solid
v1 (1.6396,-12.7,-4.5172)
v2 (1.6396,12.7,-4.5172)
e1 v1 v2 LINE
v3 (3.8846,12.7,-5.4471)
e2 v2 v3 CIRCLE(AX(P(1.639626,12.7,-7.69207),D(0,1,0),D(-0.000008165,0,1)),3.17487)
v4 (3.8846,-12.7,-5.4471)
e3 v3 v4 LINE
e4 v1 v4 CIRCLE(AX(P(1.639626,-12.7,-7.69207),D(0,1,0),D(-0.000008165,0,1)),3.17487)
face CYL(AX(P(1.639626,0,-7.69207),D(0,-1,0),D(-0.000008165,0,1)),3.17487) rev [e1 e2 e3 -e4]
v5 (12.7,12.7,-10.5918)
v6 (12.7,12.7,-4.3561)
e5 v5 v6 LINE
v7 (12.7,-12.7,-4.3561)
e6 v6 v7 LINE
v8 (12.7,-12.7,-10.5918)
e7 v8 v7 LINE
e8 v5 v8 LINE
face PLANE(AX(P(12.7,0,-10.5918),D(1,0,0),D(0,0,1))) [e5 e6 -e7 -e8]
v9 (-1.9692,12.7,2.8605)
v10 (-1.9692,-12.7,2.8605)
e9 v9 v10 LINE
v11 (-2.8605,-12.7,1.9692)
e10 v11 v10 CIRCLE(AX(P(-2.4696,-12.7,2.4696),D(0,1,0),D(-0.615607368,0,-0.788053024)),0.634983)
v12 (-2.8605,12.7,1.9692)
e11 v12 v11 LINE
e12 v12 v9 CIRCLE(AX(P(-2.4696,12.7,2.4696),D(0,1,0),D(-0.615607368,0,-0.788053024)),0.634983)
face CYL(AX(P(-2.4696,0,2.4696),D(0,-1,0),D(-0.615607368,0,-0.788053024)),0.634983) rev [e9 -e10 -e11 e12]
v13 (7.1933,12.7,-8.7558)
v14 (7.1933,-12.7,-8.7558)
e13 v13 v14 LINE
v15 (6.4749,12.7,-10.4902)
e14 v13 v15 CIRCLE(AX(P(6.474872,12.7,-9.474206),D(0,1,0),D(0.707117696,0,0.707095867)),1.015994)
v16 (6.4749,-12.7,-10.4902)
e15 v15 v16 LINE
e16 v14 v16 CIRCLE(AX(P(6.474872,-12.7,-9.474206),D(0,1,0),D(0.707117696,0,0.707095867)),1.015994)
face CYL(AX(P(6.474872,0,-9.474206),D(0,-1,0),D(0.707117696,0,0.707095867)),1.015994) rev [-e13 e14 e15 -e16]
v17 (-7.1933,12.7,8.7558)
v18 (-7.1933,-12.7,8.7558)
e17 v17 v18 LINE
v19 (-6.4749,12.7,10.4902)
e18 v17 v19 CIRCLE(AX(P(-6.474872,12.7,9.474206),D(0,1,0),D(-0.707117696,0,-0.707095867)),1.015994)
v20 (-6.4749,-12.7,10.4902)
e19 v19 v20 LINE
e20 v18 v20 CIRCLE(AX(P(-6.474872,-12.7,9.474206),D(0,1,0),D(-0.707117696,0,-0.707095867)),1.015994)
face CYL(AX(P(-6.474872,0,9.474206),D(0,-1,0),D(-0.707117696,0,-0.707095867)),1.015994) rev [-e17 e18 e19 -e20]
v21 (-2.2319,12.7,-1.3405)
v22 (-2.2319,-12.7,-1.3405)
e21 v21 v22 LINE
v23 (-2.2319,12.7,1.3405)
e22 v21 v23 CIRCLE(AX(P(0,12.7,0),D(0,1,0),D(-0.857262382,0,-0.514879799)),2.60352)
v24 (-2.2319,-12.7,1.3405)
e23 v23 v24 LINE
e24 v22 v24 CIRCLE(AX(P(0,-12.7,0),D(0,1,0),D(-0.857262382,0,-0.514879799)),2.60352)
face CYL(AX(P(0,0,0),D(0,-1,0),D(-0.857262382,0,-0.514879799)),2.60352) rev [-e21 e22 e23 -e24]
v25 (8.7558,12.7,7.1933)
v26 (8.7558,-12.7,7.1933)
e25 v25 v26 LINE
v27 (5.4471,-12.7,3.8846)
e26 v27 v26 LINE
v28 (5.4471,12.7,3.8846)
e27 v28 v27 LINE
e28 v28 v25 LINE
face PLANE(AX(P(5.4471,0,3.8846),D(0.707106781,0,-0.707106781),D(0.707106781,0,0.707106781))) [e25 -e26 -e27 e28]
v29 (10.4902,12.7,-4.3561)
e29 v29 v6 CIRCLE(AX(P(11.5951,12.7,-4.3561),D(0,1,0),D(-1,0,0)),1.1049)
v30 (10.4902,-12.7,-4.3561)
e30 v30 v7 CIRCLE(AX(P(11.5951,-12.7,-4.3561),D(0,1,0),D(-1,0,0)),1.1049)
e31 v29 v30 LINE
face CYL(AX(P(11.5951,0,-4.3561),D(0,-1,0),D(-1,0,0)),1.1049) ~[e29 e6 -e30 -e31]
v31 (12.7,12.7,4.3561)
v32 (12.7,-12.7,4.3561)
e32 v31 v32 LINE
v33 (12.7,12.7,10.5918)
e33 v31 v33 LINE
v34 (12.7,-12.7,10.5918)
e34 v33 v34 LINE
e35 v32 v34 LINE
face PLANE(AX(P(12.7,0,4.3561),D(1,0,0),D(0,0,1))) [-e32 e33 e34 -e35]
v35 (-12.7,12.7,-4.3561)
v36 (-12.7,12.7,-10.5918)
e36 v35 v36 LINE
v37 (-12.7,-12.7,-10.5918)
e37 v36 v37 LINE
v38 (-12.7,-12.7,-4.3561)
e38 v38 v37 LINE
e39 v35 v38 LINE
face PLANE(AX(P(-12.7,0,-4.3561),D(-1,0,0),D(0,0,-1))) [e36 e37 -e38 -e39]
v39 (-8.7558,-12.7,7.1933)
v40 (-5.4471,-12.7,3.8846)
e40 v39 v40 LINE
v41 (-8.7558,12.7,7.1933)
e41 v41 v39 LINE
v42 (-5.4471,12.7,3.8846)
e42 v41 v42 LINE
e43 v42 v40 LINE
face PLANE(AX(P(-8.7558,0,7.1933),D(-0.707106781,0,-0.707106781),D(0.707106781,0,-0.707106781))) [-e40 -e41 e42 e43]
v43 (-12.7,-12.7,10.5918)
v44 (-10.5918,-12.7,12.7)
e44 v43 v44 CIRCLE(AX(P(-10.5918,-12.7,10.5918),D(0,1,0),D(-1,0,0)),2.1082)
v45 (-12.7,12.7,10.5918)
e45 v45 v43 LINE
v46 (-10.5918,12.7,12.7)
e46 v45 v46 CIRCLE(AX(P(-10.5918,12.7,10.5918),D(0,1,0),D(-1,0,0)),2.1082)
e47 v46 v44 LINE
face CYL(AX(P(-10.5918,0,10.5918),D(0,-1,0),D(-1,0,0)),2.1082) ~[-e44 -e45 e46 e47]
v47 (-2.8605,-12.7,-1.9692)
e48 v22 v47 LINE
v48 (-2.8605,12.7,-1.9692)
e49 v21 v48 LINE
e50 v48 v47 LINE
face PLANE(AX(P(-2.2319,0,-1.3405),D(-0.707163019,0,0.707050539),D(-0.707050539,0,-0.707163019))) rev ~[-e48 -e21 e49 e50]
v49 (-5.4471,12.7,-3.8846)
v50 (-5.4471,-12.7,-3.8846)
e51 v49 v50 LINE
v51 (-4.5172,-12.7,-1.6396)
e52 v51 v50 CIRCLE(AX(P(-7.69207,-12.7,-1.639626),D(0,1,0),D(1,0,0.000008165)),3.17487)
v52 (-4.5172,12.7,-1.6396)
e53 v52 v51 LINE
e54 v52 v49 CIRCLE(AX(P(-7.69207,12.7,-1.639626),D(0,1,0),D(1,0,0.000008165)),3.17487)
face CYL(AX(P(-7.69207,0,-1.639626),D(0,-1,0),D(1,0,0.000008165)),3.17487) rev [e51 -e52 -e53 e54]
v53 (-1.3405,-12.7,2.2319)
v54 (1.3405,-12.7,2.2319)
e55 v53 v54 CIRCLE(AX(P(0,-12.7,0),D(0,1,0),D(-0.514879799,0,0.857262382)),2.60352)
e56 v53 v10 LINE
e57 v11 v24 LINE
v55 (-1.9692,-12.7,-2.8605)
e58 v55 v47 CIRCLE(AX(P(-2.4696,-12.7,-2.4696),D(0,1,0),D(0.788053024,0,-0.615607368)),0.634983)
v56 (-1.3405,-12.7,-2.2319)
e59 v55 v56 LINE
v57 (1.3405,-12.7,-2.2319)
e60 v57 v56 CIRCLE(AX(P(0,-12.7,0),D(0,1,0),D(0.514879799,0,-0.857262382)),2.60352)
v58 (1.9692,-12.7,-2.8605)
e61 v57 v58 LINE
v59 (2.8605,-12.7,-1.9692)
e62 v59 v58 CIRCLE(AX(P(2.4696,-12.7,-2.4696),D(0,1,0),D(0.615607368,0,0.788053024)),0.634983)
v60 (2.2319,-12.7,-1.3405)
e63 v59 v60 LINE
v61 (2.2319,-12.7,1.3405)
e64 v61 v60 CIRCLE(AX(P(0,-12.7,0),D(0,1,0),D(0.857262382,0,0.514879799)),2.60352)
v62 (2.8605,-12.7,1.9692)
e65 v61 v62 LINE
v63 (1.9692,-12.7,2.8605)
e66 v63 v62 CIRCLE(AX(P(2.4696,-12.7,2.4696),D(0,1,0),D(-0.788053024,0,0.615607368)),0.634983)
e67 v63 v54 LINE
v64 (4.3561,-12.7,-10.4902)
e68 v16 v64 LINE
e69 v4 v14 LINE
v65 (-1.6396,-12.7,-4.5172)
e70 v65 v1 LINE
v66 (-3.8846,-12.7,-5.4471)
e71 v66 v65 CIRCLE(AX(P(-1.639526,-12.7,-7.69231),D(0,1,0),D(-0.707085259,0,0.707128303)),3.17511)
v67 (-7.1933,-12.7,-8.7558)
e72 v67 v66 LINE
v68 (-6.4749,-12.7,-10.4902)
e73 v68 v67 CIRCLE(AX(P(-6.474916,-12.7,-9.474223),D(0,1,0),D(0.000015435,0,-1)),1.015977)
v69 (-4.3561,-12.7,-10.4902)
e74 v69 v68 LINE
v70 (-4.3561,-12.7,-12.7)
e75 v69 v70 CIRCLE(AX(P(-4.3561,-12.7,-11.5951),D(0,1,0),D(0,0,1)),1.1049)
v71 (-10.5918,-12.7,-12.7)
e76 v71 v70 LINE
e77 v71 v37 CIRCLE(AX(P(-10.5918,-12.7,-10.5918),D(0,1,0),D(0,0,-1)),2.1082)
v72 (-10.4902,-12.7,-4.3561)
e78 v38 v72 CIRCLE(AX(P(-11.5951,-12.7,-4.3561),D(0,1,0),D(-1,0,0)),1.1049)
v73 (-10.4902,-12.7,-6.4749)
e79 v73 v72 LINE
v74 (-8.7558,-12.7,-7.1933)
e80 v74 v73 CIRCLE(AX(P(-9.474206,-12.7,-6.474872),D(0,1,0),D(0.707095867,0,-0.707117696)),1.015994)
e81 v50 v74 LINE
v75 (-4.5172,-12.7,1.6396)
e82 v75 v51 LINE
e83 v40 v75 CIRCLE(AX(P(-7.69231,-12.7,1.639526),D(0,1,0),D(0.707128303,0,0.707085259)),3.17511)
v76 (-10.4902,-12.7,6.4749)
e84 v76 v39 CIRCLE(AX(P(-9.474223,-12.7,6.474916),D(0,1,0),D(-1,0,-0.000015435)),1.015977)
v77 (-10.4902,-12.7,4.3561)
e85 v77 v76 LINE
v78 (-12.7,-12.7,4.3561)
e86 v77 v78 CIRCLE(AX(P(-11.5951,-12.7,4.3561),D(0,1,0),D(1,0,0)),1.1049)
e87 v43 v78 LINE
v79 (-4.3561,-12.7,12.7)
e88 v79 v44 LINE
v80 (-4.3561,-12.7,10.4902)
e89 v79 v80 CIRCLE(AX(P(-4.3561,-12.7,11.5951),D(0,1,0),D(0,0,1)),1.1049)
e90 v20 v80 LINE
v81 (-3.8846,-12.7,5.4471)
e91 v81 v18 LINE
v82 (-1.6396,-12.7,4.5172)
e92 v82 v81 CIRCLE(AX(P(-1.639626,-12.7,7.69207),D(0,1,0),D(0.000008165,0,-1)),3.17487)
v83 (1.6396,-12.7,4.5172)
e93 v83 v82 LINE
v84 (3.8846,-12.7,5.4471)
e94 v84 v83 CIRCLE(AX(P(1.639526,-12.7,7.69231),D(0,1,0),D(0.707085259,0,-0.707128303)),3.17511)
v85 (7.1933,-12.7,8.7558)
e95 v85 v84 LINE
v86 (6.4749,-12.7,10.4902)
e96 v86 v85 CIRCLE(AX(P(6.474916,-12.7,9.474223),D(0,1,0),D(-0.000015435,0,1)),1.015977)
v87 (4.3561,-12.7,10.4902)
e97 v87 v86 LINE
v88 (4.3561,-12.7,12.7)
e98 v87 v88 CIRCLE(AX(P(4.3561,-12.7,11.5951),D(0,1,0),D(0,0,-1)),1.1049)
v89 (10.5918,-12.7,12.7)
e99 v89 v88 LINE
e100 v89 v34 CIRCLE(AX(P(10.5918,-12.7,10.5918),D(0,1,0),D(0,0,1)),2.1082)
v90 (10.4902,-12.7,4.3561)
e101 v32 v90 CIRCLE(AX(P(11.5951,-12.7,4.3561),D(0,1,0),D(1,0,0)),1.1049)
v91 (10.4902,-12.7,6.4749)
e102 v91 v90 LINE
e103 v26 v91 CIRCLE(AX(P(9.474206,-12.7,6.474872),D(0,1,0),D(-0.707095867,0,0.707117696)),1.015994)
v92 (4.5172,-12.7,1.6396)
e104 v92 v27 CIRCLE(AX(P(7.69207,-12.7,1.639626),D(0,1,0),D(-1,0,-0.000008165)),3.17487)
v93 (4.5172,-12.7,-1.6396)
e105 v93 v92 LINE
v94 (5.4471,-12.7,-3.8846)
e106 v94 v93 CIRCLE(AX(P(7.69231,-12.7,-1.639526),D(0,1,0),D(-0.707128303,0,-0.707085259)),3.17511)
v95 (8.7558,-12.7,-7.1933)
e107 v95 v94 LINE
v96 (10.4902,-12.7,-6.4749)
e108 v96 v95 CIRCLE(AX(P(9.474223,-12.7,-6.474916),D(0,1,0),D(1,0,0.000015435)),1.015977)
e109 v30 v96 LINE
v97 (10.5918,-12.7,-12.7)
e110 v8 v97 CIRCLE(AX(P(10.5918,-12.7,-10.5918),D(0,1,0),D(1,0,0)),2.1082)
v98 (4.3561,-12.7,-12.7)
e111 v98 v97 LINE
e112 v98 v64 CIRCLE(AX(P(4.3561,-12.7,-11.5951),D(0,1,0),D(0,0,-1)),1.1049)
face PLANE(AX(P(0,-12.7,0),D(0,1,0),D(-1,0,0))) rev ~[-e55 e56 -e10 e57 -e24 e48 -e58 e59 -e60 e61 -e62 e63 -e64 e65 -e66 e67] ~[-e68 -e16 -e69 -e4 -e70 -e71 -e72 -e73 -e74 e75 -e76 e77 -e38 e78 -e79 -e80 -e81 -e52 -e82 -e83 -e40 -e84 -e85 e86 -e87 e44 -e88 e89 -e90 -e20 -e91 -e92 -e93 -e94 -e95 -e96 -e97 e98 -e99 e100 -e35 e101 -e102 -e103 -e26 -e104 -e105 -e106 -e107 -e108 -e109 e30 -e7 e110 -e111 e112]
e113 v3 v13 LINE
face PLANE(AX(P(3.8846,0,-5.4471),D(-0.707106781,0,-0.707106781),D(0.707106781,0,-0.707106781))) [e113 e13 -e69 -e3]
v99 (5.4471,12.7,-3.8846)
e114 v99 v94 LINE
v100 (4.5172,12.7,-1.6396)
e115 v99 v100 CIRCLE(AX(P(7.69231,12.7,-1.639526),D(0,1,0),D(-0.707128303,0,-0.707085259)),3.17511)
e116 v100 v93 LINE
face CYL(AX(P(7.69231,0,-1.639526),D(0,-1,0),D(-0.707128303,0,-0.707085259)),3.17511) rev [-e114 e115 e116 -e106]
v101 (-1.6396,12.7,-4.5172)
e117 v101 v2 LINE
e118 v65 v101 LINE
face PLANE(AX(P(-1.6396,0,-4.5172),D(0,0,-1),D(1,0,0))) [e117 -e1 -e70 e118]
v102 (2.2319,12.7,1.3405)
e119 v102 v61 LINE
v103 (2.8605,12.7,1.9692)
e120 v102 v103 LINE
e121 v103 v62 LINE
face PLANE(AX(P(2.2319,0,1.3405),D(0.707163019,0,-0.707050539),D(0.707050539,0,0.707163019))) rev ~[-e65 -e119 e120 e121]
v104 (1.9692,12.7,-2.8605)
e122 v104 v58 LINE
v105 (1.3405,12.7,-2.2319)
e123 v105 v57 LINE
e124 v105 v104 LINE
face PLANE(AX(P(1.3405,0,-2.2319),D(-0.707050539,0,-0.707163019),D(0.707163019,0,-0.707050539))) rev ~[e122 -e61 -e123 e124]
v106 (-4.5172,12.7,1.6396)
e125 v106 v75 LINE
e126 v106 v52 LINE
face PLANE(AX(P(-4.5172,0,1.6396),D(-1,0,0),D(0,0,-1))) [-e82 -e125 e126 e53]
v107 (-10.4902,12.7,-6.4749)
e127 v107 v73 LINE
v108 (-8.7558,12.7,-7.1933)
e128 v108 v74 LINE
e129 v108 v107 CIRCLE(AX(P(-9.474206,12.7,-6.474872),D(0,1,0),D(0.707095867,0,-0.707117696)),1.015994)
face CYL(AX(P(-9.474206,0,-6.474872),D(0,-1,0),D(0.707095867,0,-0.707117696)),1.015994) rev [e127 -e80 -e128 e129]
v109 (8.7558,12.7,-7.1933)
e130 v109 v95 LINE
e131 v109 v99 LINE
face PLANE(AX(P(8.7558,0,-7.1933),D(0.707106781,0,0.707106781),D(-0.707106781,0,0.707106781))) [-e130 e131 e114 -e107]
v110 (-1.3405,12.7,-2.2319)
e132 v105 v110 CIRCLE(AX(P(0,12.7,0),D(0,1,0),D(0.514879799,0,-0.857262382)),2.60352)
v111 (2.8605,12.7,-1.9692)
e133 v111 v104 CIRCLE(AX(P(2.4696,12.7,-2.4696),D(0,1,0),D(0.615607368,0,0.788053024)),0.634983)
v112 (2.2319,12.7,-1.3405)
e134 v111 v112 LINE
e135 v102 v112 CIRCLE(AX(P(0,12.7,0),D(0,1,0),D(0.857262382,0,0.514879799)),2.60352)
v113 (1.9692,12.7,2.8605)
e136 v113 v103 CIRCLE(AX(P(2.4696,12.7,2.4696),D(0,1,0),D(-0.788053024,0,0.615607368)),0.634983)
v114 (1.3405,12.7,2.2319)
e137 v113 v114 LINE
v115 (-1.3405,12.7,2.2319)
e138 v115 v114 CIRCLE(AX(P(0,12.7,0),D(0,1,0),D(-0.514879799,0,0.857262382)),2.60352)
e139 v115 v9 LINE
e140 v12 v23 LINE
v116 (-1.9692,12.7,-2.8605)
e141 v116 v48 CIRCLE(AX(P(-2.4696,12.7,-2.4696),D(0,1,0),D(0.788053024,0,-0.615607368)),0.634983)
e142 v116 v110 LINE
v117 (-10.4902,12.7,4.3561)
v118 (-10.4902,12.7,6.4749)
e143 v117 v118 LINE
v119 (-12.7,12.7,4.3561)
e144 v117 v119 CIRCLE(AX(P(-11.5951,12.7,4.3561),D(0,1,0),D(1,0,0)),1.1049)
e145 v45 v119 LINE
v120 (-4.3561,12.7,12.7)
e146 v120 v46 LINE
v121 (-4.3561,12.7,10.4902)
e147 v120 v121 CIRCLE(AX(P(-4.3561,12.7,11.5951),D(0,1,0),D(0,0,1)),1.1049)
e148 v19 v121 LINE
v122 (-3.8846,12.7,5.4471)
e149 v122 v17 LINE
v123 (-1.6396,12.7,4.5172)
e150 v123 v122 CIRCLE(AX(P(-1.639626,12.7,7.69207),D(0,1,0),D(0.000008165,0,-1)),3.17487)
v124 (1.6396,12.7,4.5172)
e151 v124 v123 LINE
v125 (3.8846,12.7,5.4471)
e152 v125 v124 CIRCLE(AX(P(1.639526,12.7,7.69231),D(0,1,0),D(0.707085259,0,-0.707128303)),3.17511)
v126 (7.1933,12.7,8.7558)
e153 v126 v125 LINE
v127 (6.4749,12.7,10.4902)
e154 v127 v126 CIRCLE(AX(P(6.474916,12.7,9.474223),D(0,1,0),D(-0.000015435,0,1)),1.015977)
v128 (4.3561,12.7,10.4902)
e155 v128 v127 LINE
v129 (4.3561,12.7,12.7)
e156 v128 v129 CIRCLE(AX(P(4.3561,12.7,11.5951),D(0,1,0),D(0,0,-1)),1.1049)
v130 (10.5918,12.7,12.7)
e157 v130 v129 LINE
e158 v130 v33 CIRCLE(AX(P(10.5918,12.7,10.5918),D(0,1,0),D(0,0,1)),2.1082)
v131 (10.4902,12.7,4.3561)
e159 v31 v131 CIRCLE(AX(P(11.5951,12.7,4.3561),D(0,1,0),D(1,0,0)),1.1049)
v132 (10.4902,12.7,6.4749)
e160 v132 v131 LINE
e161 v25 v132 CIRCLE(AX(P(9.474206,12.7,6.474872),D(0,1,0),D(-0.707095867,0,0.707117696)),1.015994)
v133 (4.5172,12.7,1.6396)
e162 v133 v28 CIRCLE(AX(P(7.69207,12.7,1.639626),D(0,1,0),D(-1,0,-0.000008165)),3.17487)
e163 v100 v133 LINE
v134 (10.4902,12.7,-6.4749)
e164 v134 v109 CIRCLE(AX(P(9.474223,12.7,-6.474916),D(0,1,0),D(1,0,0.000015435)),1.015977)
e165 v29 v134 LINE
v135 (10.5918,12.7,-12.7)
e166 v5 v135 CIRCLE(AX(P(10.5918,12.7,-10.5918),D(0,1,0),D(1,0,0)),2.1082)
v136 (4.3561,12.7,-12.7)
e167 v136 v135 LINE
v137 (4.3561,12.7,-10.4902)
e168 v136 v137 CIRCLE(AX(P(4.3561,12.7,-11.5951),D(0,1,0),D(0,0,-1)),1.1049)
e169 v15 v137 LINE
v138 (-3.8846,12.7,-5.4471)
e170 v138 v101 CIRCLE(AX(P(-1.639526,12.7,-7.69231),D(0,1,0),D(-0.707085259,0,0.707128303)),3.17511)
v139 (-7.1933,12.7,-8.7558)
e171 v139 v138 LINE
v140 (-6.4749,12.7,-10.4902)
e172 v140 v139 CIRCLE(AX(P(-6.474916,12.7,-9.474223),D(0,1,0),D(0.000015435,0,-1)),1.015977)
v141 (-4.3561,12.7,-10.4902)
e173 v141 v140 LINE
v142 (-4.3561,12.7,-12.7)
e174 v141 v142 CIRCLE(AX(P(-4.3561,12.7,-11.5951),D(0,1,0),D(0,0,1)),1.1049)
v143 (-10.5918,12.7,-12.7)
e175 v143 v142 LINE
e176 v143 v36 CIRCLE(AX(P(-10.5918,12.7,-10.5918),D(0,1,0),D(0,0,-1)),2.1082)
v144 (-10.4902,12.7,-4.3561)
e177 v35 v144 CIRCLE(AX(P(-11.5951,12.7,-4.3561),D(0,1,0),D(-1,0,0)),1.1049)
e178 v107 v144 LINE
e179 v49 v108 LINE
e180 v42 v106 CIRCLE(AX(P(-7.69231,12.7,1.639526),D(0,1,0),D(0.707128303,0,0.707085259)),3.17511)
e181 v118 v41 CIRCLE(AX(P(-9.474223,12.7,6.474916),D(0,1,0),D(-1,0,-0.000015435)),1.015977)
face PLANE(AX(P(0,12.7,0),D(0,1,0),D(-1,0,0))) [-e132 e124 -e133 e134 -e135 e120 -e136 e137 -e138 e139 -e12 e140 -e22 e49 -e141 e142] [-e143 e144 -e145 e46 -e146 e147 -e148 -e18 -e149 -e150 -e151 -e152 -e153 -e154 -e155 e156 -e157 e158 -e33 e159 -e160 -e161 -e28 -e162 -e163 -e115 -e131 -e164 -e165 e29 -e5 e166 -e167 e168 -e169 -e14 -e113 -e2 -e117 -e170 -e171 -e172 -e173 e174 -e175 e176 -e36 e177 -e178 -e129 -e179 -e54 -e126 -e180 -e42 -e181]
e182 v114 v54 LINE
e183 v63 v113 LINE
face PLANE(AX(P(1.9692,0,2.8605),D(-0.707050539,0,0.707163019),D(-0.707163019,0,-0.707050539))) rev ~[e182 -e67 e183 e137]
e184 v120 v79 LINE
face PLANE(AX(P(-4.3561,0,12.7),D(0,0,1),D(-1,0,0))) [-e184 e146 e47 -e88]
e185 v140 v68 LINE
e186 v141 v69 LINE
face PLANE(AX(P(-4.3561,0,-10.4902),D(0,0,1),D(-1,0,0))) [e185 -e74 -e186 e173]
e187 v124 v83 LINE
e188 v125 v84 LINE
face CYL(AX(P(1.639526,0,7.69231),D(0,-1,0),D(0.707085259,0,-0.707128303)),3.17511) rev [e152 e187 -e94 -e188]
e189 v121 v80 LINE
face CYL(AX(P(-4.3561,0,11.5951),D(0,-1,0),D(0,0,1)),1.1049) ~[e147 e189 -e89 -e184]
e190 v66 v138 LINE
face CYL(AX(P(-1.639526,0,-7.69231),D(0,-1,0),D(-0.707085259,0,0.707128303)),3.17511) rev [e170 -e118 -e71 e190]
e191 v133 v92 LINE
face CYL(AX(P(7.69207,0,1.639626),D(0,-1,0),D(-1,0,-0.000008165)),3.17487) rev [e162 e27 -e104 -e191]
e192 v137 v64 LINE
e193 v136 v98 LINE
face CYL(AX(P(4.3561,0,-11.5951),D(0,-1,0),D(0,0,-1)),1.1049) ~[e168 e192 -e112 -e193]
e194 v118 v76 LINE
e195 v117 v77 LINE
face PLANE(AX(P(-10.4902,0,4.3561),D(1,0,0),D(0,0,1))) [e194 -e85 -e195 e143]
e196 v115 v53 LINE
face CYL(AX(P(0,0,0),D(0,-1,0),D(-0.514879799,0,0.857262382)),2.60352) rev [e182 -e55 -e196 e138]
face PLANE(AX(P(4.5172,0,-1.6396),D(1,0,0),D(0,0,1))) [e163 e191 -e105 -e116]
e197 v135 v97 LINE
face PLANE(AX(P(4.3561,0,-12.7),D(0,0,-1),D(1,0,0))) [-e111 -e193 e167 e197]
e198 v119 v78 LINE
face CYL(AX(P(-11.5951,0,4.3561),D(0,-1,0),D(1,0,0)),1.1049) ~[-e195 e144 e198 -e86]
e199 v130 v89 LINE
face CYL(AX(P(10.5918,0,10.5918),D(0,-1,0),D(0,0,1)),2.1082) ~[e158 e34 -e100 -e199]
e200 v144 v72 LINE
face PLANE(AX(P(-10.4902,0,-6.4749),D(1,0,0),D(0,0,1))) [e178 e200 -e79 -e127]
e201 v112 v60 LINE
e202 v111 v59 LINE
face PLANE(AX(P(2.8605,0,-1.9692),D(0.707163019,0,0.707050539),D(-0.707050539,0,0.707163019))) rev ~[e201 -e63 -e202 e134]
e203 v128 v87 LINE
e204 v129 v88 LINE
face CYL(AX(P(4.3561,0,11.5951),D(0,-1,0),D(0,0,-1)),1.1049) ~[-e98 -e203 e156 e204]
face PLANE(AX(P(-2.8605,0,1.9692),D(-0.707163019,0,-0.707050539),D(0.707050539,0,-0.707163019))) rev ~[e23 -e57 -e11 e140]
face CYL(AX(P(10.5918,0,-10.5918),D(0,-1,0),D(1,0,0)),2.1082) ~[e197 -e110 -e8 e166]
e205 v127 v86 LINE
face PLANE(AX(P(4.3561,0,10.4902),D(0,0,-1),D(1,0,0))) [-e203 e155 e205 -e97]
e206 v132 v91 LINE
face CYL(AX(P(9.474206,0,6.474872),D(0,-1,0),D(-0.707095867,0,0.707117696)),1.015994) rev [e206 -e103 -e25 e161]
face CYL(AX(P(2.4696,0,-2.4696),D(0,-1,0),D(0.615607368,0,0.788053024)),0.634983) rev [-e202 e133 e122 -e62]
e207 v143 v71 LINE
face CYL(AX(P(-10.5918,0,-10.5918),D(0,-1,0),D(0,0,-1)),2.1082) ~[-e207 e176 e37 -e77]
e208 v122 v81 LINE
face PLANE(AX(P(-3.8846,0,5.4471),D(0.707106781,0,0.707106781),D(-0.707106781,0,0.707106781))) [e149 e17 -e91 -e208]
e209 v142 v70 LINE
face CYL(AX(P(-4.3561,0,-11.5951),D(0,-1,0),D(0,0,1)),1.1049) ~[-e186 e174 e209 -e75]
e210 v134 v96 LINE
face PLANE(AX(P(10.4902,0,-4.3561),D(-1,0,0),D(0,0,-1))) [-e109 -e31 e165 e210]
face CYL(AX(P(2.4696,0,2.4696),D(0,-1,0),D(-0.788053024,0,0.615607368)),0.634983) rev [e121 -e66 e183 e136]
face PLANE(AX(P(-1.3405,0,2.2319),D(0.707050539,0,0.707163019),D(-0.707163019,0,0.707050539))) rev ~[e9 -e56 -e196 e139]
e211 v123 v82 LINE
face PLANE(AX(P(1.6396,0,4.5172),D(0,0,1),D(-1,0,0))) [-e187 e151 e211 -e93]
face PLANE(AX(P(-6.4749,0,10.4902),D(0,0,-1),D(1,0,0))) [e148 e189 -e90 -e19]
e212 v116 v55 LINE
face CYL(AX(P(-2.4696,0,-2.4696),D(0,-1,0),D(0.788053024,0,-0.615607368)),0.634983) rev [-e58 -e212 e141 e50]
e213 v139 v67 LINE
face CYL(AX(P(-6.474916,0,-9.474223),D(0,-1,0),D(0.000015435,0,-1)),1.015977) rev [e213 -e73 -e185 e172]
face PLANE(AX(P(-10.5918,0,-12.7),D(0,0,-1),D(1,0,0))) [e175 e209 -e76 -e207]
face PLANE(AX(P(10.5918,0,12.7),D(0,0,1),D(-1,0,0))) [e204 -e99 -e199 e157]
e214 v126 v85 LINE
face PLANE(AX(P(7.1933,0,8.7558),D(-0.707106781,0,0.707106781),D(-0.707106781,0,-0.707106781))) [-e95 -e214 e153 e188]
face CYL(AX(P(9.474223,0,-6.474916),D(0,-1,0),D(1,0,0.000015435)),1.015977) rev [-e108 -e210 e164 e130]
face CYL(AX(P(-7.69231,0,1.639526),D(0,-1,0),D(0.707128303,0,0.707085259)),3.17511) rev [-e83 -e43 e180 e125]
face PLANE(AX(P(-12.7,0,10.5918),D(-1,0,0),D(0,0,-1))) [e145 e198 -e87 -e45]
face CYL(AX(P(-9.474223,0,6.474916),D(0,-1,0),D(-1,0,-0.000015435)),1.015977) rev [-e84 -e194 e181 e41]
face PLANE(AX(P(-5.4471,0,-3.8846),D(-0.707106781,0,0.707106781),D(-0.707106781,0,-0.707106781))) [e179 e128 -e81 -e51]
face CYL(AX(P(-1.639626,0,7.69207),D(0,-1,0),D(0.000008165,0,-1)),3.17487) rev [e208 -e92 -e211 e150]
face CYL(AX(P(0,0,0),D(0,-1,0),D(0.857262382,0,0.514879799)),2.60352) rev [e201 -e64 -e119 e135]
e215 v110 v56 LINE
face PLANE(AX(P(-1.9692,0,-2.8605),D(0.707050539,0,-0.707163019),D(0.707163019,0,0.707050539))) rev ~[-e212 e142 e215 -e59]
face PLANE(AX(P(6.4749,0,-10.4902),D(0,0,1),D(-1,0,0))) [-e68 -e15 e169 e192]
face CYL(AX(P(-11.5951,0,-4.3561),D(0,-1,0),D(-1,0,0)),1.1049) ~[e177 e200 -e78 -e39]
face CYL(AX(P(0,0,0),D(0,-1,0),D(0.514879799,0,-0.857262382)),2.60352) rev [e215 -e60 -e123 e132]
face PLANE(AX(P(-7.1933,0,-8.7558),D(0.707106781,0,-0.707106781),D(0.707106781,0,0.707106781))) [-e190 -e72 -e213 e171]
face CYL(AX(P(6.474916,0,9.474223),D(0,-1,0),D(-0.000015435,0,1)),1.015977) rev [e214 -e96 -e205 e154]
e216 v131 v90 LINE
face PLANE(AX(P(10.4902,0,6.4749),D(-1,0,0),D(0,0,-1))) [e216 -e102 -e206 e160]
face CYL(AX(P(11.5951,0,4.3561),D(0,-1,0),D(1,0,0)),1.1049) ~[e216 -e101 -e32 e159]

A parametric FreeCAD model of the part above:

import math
import FreeCAD as App
import Part
import Sketcher
Q = App.Units.Quantity

doc = App.newDocument("Part")
body = doc.addObject("PartDesign::Body", "Body")

# Sketch on XZ plane
sketch1 = body.newObject("Sketcher::SketchObject", "Sketch")
sketch1.AttachmentSupport = (doc.getObject("XZ_Plane"), [""])
sketch1.MapMode = "FlatFace"
sketch1.addGeometry(Part.ArcOfCircle(Part.Circle(App.Vector(1.6396, -7.6922, 0), App.Vector(0, 0, 1), 3.175), math.radians(45.001276), math.radians(90)), False)
sketch1.addGeometry(Part.LineSegment(App.Vector(1.6396, -4.5172, 0), App.Vector(-1.6396, -4.5172, 0)), False)
sketch1.addGeometry(Part.ArcOfCircle(Part.Circle(App.Vector(-1.6396, -7.6922, 0), App.Vector(0, 0, 1), 3.17498), math.radians(90), math.radians(134.998724)), False)
sketch1.addGeometry(Part.LineSegment(App.Vector(-3.8846, -5.4471, 0), App.Vector(-7.1933, -8.7558, 0)), False)
sketch1.addGeometry(Part.ArcOfCircle(Part.Circle(App.Vector(-6.4749, -9.4742, 0), App.Vector(0, 0, 1), 1.016), math.radians(135), math.radians(270)), False)
sketch1.addGeometry(Part.LineSegment(App.Vector(-6.4749, -10.4902, 0), App.Vector(-4.3561, -10.4902, 0)), False)
sketch1.addGeometry(Part.ArcOfCircle(Part.Circle(App.Vector(-4.3561, -11.5951, 0), App.Vector(0, 0, 1), 1.1049), math.radians(-90), math.radians(90)), False)
sketch1.addGeometry(Part.LineSegment(App.Vector(-4.3561, -12.7, 0), App.Vector(-10.5918, -12.7, 0)), False)
sketch1.addGeometry(Part.ArcOfCircle(Part.Circle(App.Vector(-10.5918, -10.5918, 0), App.Vector(0, 0, 1), 2.1082), math.radians(180), math.radians(270)), False)
sketch1.addGeometry(Part.LineSegment(App.Vector(-12.7, -10.5918, 0), App.Vector(-12.7, -4.3561, 0)), False)
sketch1.addGeometry(Part.ArcOfCircle(Part.Circle(App.Vector(-11.5951, -4.3561, 0), App.Vector(0, 0, 1), 1.1049), math.radians(0), math.radians(180)), False)
sketch1.addGeometry(Part.LineSegment(App.Vector(-10.4902, -4.3561, 0), App.Vector(-10.4902, -6.4749, 0)), False)
sketch1.addGeometry(Part.ArcOfCircle(Part.Circle(App.Vector(-9.4742, -6.4749, 0), App.Vector(0, 0, 1), 1.015971), math.radians(180), math.radians(315)), False)
sketch1.addGeometry(Part.LineSegment(App.Vector(-8.7558, -7.1933, 0), App.Vector(-5.4471, -3.8846, 0)), False)
sketch1.addGeometry(Part.ArcOfCircle(Part.Circle(App.Vector(-7.6922, -1.6396, 0), App.Vector(0, 0, 1), 3.175), math.radians(-44.998724), math.radians(0)), False)
sketch1.addGeometry(Part.LineSegment(App.Vector(-4.5172, -1.6396, 0), App.Vector(-4.5172, 1.6396, 0)), False)
sketch1.addGeometry(Part.ArcOfCircle(Part.Circle(App.Vector(-7.6922, 1.6396, 0), App.Vector(0, 0, 1), 3.17498), math.radians(0), math.radians(44.998724)), False)
sketch1.addGeometry(Part.LineSegment(App.Vector(-5.4471, 3.8846, 0), App.Vector(-8.7558, 7.1933, 0)), False)
sketch1.addGeometry(Part.ArcOfCircle(Part.Circle(App.Vector(-9.4742, 6.4749, 0), App.Vector(0, 0, 1), 1.016), math.radians(45), math.radians(180)), False)
sketch1.addGeometry(Part.LineSegment(App.Vector(-10.4902, 6.4749, 0), App.Vector(-10.4902, 4.3561, 0)), False)
sketch1.addGeometry(Part.ArcOfCircle(Part.Circle(App.Vector(-11.5951, 4.3561, 0), App.Vector(0, 0, 1), 1.1049), math.radians(180), math.radians(360)), False)
sketch1.addGeometry(Part.LineSegment(App.Vector(-12.7, 4.3561, 0), App.Vector(-12.7, 10.5918, 0)), False)
sketch1.addGeometry(Part.ArcOfCircle(Part.Circle(App.Vector(-10.5918, 10.5918, 0), App.Vector(0, 0, 1), 2.1082), math.radians(90), math.radians(180)), False)
sketch1.addGeometry(Part.LineSegment(App.Vector(-10.5918, 12.7, 0), App.Vector(-4.3561, 12.7, 0)), False)
sketch1.addGeometry(Part.ArcOfCircle(Part.Circle(App.Vector(-4.3561, 11.5951, 0), App.Vector(0, 0, 1), 1.1049), math.radians(-90), math.radians(90)), False)
sketch1.addGeometry(Part.LineSegment(App.Vector(-4.3561, 10.4902, 0), App.Vector(-6.4749, 10.4902, 0)), False)
sketch1.addGeometry(Part.ArcOfCircle(Part.Circle(App.Vector(-6.4749, 9.4742, 0), App.Vector(0, 0, 1), 1.015971), math.radians(90), math.radians(225)), False)
sketch1.addGeometry(Part.LineSegment(App.Vector(-7.1933, 8.7558, 0), App.Vector(-3.8846, 5.4471, 0)), False)
sketch1.addGeometry(Part.ArcOfCircle(Part.Circle(App.Vector(-1.6396, 7.6922, 0), App.Vector(0, 0, 1), 3.175), math.radians(-134.998724), math.radians(-90)), False)
sketch1.addGeometry(Part.LineSegment(App.Vector(-1.6396, 4.5172, 0), App.Vector(1.6396, 4.5172, 0)), False)
sketch1.addGeometry(Part.ArcOfCircle(Part.Circle(App.Vector(1.6396, 7.6922, 0), App.Vector(0, 0, 1), 3.17498), math.radians(-90), math.radians(-45.001276)), False)
sketch1.addGeometry(Part.LineSegment(App.Vector(3.8846, 5.4471, 0), App.Vector(7.1933, 8.7558, 0)), False)
sketch1.addGeometry(Part.ArcOfCircle(Part.Circle(App.Vector(6.4749, 9.4742, 0), App.Vector(0, 0, 1), 1.016), math.radians(-45), math.radians(90)), False)
sketch1.addGeometry(Part.LineSegment(App.Vector(6.4749, 10.4902, 0), App.Vector(4.3561, 10.4902, 0)), False)
sketch1.addGeometry(Part.ArcOfCircle(Part.Circle(App.Vector(4.3561, 11.5951, 0), App.Vector(0, 0, 1), 1.1049), math.radians(90), math.radians(270)), False)
sketch1.addGeometry(Part.LineSegment(App.Vector(4.3561, 12.7, 0), App.Vector(10.5918, 12.7, 0)), False)
sketch1.addGeometry(Part.ArcOfCircle(Part.Circle(App.Vector(10.5918, 10.5918, 0), App.Vector(0, 0, 1), 2.1082), math.radians(0), math.radians(90)), False)
sketch1.addGeometry(Part.LineSegment(App.Vector(12.7, 10.5918, 0), App.Vector(12.7, 4.3561, 0)), False)
sketch1.addGeometry(Part.ArcOfCircle(Part.Circle(App.Vector(11.5951, 4.3561, 0), App.Vector(0, 0, 1), 1.1049), math.radians(180), math.radians(360)), False)
sketch1.addGeometry(Part.LineSegment(App.Vector(10.4902, 4.3561, 0), App.Vector(10.4902, 6.4749, 0)), False)
sketch1.addGeometry(Part.ArcOfCircle(Part.Circle(App.Vector(9.4742, 6.4749, 0), App.Vector(0, 0, 1), 1.015971), math.radians(0), math.radians(135)), False)
sketch1.addGeometry(Part.LineSegment(App.Vector(8.7558, 7.1933, 0), App.Vector(5.4471, 3.8846, 0)), False)
sketch1.addGeometry(Part.ArcOfCircle(Part.Circle(App.Vector(7.6922, 1.6396, 0), App.Vector(0, 0, 1), 3.175), math.radians(135.001276), math.radians(180)), False)
sketch1.addGeometry(Part.LineSegment(App.Vector(4.5172, 1.6396, 0), App.Vector(4.5172, -1.6396, 0)), False)
sketch1.addGeometry(Part.ArcOfCircle(Part.Circle(App.Vector(7.6922, -1.6396, 0), App.Vector(0, 0, 1), 3.17498), math.radians(180), math.radians(224.998724)), False)
sketch1.addGeometry(Part.LineSegment(App.Vector(5.4471, -3.8846, 0), App.Vector(8.7558, -7.1933, 0)), False)
sketch1.addGeometry(Part.ArcOfCircle(Part.Circle(App.Vector(9.4742, -6.4749, 0), App.Vector(0, 0, 1), 1.016), math.radians(-135), math.radians(0)), False)
sketch1.addGeometry(Part.LineSegment(App.Vector(10.4902, -6.4749, 0), App.Vector(10.4902, -4.3561, 0)), False)
sketch1.addGeometry(Part.ArcOfCircle(Part.Circle(App.Vector(11.5951, -4.3561, 0), App.Vector(0, 0, 1), 1.1049), math.radians(0), math.radians(180)), False)
sketch1.addGeometry(Part.LineSegment(App.Vector(12.7, -4.3561, 0), App.Vector(12.7, -10.5918, 0)), False)
sketch1.addGeometry(Part.ArcOfCircle(Part.Circle(App.Vector(10.5918, -10.5918, 0), App.Vector(0, 0, 1), 2.1082), math.radians(-90), math.radians(0)), False)
sketch1.addGeometry(Part.LineSegment(App.Vector(10.5918, -12.7, 0), App.Vector(4.3561, -12.7, 0)), False)
sketch1.addGeometry(Part.ArcOfCircle(Part.Circle(App.Vector(4.3561, -11.5951, 0), App.Vector(0, 0, 1), 1.1049), math.radians(90), math.radians(270)), False)
sketch1.addGeometry(Part.LineSegment(App.Vector(4.3561, -10.4902, 0), App.Vector(6.4749, -10.4902, 0)), False)
sketch1.addGeometry(Part.ArcOfCircle(Part.Circle(App.Vector(6.4749, -9.4742, 0), App.Vector(0, 0, 1), 1.015971), math.radians(-90), math.radians(45)), False)
sketch1.addGeometry(Part.LineSegment(App.Vector(7.1933, -8.7558, 0), App.Vector(3.8846, -5.4471, 0)), False)
sketch1.addGeometry(Part.ArcOfCircle(Part.Circle(App.Vector(2.4696, 2.4696, 0), App.Vector(0, 0, 1), 0.634983), math.radians(-52.003934), math.radians(142.003934)), False)
sketch1.addGeometry(Part.LineSegment(App.Vector(1.9692, 2.8605, 0), App.Vector(1.3405, 2.2319, 0)), False)
sketch1.addGeometry(Part.ArcOfCircle(Part.Circle(App.Vector(0, 0, 0), App.Vector(0, 0, 1), 2.60352), math.radians(59.010579), math.radians(120.989421)), False)
sketch1.addGeometry(Part.LineSegment(App.Vector(-1.3405, 2.2319, 0), App.Vector(-1.9692, 2.8605, 0)), False)
sketch1.addGeometry(Part.ArcOfCircle(Part.Circle(App.Vector(-2.4696, 2.4696, 0), App.Vector(0, 0, 1), 0.634983), math.radians(37.996066), math.radians(232.003934)), False)
sketch1.addGeometry(Part.LineSegment(App.Vector(-2.8605, 1.9692, 0), App.Vector(-2.2319, 1.3405, 0)), False)
sketch1.addGeometry(Part.ArcOfCircle(Part.Circle(App.Vector(0, 0, 0), App.Vector(0, 0, 1), 2.60352), math.radians(149.010579), math.radians(210.989421)), False)
sketch1.addGeometry(Part.LineSegment(App.Vector(-2.2319, -1.3405, 0), App.Vector(-2.8605, -1.9692, 0)), False)
sketch1.addGeometry(Part.ArcOfCircle(Part.Circle(App.Vector(-2.4696, -2.4696, 0), App.Vector(0, 0, 1), 0.634983), math.radians(127.996066), math.radians(322.003934)), False)
sketch1.addGeometry(Part.LineSegment(App.Vector(-1.9692, -2.8605, 0), App.Vector(-1.3405, -2.2319, 0)), False)
sketch1.addGeometry(Part.ArcOfCircle(Part.Circle(App.Vector(0, 0, 0), App.Vector(0, 0, 1), 2.60352), math.radians(-120.989421), math.radians(-59.010579)), False)
sketch1.addGeometry(Part.LineSegment(App.Vector(1.3405, -2.2319, 0), App.Vector(1.9692, -2.8605, 0)), False)
sketch1.addGeometry(Part.ArcOfCircle(Part.Circle(App.Vector(2.4696, -2.4696, 0), App.Vector(0, 0, 1), 0.634983), math.radians(-142.003934), math.radians(52.003934)), False)
sketch1.addGeometry(Part.LineSegment(App.Vector(2.8605, -1.9692, 0), App.Vector(2.2319, -1.3405, 0)), False)
sketch1.addGeometry(Part.ArcOfCircle(Part.Circle(App.Vector(0, 0, 0), App.Vector(0, 0, 1), 2.60352), math.radians(-30.989421), math.radians(30.989421)), False)
sketch1.addGeometry(Part.LineSegment(App.Vector(2.2319, 1.3405, 0), App.Vector(2.8605, 1.9692, 0)), False)
sketch1.addConstraint(Sketcher.Constraint("Tangent", 0, 2, 1, 1))
sketch1.addConstraint(Sketcher.Constraint("Tangent", 1, 2, 2, 1))
sketch1.addConstraint(Sketcher.Constraint("Tangent", 2, 2, 3, 1))
sketch1.addConstraint(Sketcher.Constraint("Tangent", 3, 2, 4, 1))
sketch1.addConstraint(Sketcher.Constraint("Tangent", 4, 2, 5, 1))
sketch1.addConstraint(Sketcher.Constraint("Tangent", 5, 2, 6, 2))
sketch1.addConstraint(Sketcher.Constraint("Tangent", 6, 1, 7, 1))
sketch1.addConstraint(Sketcher.Constraint("Tangent", 7, 2, 8, 2))
sketch1.addConstraint(Sketcher.Constraint("Tangent", 8, 1, 9, 1))
sketch1.addConstraint(Sketcher.Constraint("Tangent", 9, 2, 10, 2))
sketch1.addConstraint(Sketcher.Constraint("Tangent", 10, 1, 11, 1))
sketch1.addConstraint(Sketcher.Constraint("Tangent", 11, 2, 12, 1))
sketch1.addConstraint(Sketcher.Constraint("Tangent", 12, 2, 13, 1))
sketch1.addConstraint(Sketcher.Constraint("Tangent", 13, 2, 14, 1))
sketch1.addConstraint(Sketcher.Constraint("Tangent", 14, 2, 15, 1))
sketch1.addConstraint(Sketcher.Constraint("Tangent", 15, 2, 16, 1))
sketch1.addConstraint(Sketcher.Constraint("Tangent", 16, 2, 17, 1))
sketch1.addConstraint(Sketcher.Constraint("Tangent", 17, 2, 18, 1))
sketch1.addConstraint(Sketcher.Constraint("Tangent", 18, 2, 19, 1))
sketch1.addConstraint(Sketcher.Constraint("Tangent", 19, 2, 20, 2))
sketch1.addConstraint(Sketcher.Constraint("Tangent", 20, 1, 21, 1))
sketch1.addConstraint(Sketcher.Constraint("Tangent", 21, 2, 22, 2))
sketch1.addConstraint(Sketcher.Constraint("Tangent", 22, 1, 23, 1))
sketch1.addConstraint(Sketcher.Constraint("Tangent", 23, 2, 24, 2))
sketch1.addConstraint(Sketcher.Constraint("Tangent", 24, 1, 25, 1))
sketch1.addConstraint(Sketcher.Constraint("Tangent", 25, 2, 26, 1))
sketch1.addConstraint(Sketcher.Constraint("Tangent", 26, 2, 27, 1))
sketch1.addConstraint(Sketcher.Constraint("Tangent", 27, 2, 28, 1))
sketch1.addConstraint(Sketcher.Constraint("Tangent", 28, 2, 29, 1))
sketch1.addConstraint(Sketcher.Constraint("Tangent", 29, 2, 30, 1))
sketch1.addConstraint(Sketcher.Constraint("Tangent", 30, 2, 31, 1))
sketch1.addConstraint(Sketcher.Constraint("Tangent", 31, 2, 32, 1))
sketch1.addConstraint(Sketcher.Constraint("Tangent", 32, 2, 33, 1))
sketch1.addConstraint(Sketcher.Constraint("Tangent", 33, 2, 34, 2))
sketch1.addConstraint(Sketcher.Constraint("Tangent", 34, 1, 35, 1))
sketch1.addConstraint(Sketcher.Constraint("Tangent", 35, 2, 36, 2))
sketch1.addConstraint(Sketcher.Constraint("Tangent", 36, 1, 37, 1))
sketch1.addConstraint(Sketcher.Constraint("Tangent", 37, 2, 38, 2))
sketch1.addConstraint(Sketcher.Constraint("Tangent", 38, 1, 39, 1))
sketch1.addConstraint(Sketcher.Constraint("Tangent", 39, 2, 40, 1))
sketch1.addConstraint(Sketcher.Constraint("Tangent", 40, 2, 41, 1))
sketch1.addConstraint(Sketcher.Constraint("Tangent", 41, 2, 42, 1))
sketch1.addConstraint(Sketcher.Constraint("Tangent", 42, 2, 43, 1))
sketch1.addConstraint(Sketcher.Constraint("Tangent", 43, 2, 44, 1))
sketch1.addConstraint(Sketcher.Constraint("Tangent", 44, 2, 45, 1))
sketch1.addConstraint(Sketcher.Constraint("Tangent", 45, 2, 46, 1))
sketch1.addConstraint(Sketcher.Constraint("Tangent", 46, 2, 47, 1))
sketch1.addConstraint(Sketcher.Constraint("Tangent", 47, 2, 48, 2))
sketch1.addConstraint(Sketcher.Constraint("Tangent", 48, 1, 49, 1))
sketch1.addConstraint(Sketcher.Constraint("Tangent", 49, 2, 50, 2))
sketch1.addConstraint(Sketcher.Constraint("Tangent", 50, 1, 51, 1))
sketch1.addConstraint(Sketcher.Constraint("Tangent", 51, 2, 52, 2))
sketch1.addConstraint(Sketcher.Constraint("Tangent", 52, 1, 53, 1))
sketch1.addConstraint(Sketcher.Constraint("Tangent", 53, 2, 54, 1))
sketch1.addConstraint(Sketcher.Constraint("Tangent", 54, 2, 55, 1))
sketch1.addConstraint(Sketcher.Constraint("Tangent", 55, 2, 0, 1))
sketch1.addConstraint(Sketcher.Constraint("Coincident", 56, 2, 57, 1))
sketch1.addConstraint(Sketcher.Constraint("Coincident", 57, 2, 58, 1))
sketch1.addConstraint(Sketcher.Constraint("Coincident", 58, 2, 59, 1))
sketch1.addConstraint(Sketcher.Constraint("Coincident", 59, 2, 60, 1))
sketch1.addConstraint(Sketcher.Constraint("Coincident", 60, 2, 61, 1))
sketch1.addConstraint(Sketcher.Constraint("Coincident", 61, 2, 62, 1))
sketch1.addConstraint(Sketcher.Constraint("Coincident", 62, 2, 63, 1))
sketch1.addConstraint(Sketcher.Constraint("Coincident", 63, 2, 64, 1))
sketch1.addConstraint(Sketcher.Constraint("Coincident", 64, 2, 65, 1))
sketch1.addConstraint(Sketcher.Constraint("Coincident", 65, 2, 66, 1))
sketch1.addConstraint(Sketcher.Constraint("Coincident", 66, 2, 67, 1))
sketch1.addConstraint(Sketcher.Constraint("Coincident", 67, 2, 68, 1))
sketch1.addConstraint(Sketcher.Constraint("Coincident", 68, 2, 69, 1))
sketch1.addConstraint(Sketcher.Constraint("Coincident", 69, 2, 70, 1))
sketch1.addConstraint(Sketcher.Constraint("Coincident", 70, 2, 71, 1))
sketch1.addConstraint(Sketcher.Constraint("Coincident", 71, 2, 56, 1))
sketch1.addConstraint(Sketcher.Constraint("Horizontal", 1))
sketch1.addConstraint(Sketcher.Constraint("Horizontal", 5))
sketch1.addConstraint(Sketcher.Constraint("Horizontal", 7))
sketch1.addConstraint(Sketcher.Constraint("Vertical", 9))
sketch1.addConstraint(Sketcher.Constraint("Vertical", 11))
sketch1.addConstraint(Sketcher.Constraint("Vertical", 15))
sketch1.addConstraint(Sketcher.Constraint("Vertical", 19))
sketch1.addConstraint(Sketcher.Constraint("Vertical", 21))
sketch1.addConstraint(Sketcher.Constraint("Horizontal", 23))
sketch1.addConstraint(Sketcher.Constraint("Horizontal", 25))
sketch1.addConstraint(Sketcher.Constraint("Horizontal", 29))
sketch1.addConstraint(Sketcher.Constraint("Horizontal", 33))
sketch1.addConstraint(Sketcher.Constraint("Horizontal", 35))
sketch1.addConstraint(Sketcher.Constraint("Vertical", 37))
sketch1.addConstraint(Sketcher.Constraint("Vertical", 39))
sketch1.addConstraint(Sketcher.Constraint("Vertical", 43))
sketch1.addConstraint(Sketcher.Constraint("Vertical", 47))
sketch1.addConstraint(Sketcher.Constraint("Vertical", 49))
sketch1.addConstraint(Sketcher.Constraint("Horizontal", 51))
sketch1.addConstraint(Sketcher.Constraint("Horizontal", 53))
sketch1.addConstraint(Sketcher.Constraint("Coincident", 58, 3, -1, 1))
sketch1.addConstraint(Sketcher.Constraint("Coincident", 62, 3, -1, 1))
sketch1.addConstraint(Sketcher.Constraint("Coincident", 66, 3, -1, 1))
sketch1.addConstraint(Sketcher.Constraint("Coincident", 70, 3, -1, 1))
sketch1.addConstraint(Sketcher.Constraint("Equal", 0, 2))
sketch1.addConstraint(Sketcher.Constraint("Equal", 6, 10))
sketch1.addConstraint(Sketcher.Constraint("Equal", 4, 12))
sketch1.addConstraint(Sketcher.Constraint("Equal", 2, 14))
sketch1.addConstraint(Sketcher.Constraint("Equal", 14, 16))
sketch1.addConstraint(Sketcher.Constraint("Equal", 12, 18))
sketch1.addConstraint(Sketcher.Constraint("Equal", 10, 20))
sketch1.addConstraint(Sketcher.Constraint("Equal", 8, 22))
sketch1.addConstraint(Sketcher.Constraint("Equal", 20, 24))
sketch1.addConstraint(Sketcher.Constraint("Equal", 18, 26))
sketch1.addConstraint(Sketcher.Constraint("Equal", 16, 28))
sketch1.addConstraint(Sketcher.Constraint("Equal", 28, 30))
sketch1.addConstraint(Sketcher.Constraint("Equal", 26, 32))
sketch1.addConstraint(Sketcher.Constraint("Equal", 24, 34))
sketch1.addConstraint(Sketcher.Constraint("Equal", 22, 36))
sketch1.addConstraint(Sketcher.Constraint("Equal", 34, 38))
sketch1.addConstraint(Sketcher.Constraint("Equal", 32, 40))
sketch1.addConstraint(Sketcher.Constraint("Equal", 30, 42))
sketch1.addConstraint(Sketcher.Constraint("Equal", 42, 44))
sketch1.addConstraint(Sketcher.Constraint("Equal", 40, 46))
sketch1.addConstraint(Sketcher.Constraint("Equal", 38, 48))
sketch1.addConstraint(Sketcher.Constraint("Equal", 36, 50))
sketch1.addConstraint(Sketcher.Constraint("Equal", 48, 52))
sketch1.addConstraint(Sketcher.Constraint("Equal", 46, 54))
sketch1.addConstraint(Sketcher.Constraint("Equal", 56, 60))
sketch1.addConstraint(Sketcher.Constraint("Equal", 58, 62))
sketch1.addConstraint(Sketcher.Constraint("Equal", 60, 64))
sketch1.addConstraint(Sketcher.Constraint("Equal", 62, 66))
sketch1.addConstraint(Sketcher.Constraint("Equal", 64, 68))
sketch1.addConstraint(Sketcher.Constraint("Equal", 66, 70))
sketch1.addConstraint(Sketcher.Constraint("Symmetric", 0, 3, 28, 3, -1, 1))
sketch1.addConstraint(Sketcher.Constraint("Symmetric", 4, 3, 32, 3, -1, 1))
sketch1.addConstraint(Sketcher.Constraint("Symmetric", 10, 3, 38, 3, -1, 1))
sketch1.addConstraint(Sketcher.Constraint("Symmetric", 14, 3, 42, 3, -1, 1))
sketch1.addConstraint(Sketcher.Constraint("Symmetric", 18, 3, 46, 3, -1, 1))
sketch1.addConstraint(Sketcher.Constraint("Symmetric", 24, 3, 52, 3, -1, 1))
sketch1.addConstraint(Sketcher.Constraint("Symmetric", 56, 3, 64, 3, -1, 1))
sketch1.addConstraint(Sketcher.Constraint("Symmetric", 60, 3, 68, 3, -1, 1))
sketch1.addConstraint(Sketcher.Constraint("Symmetric", 26, 3, 32, 3, -2))
sketch1.addConstraint(Sketcher.Constraint("Symmetric", 20, 3, 38, 3, -2))
sketch1.addConstraint(Sketcher.Constraint("Symmetric", 56, 3, 60, 3, -2))
sketch1.addConstraint(Sketcher.Constraint("Symmetric", 17, 2, 40, 2, -2))
sketch1.addConstraint(Sketcher.Constraint("Symmetric", 13, 2, 44, 2, -2))
sketch1.addConstraint(Sketcher.Constraint("Symmetric", 3, 2, 54, 2, -2))
sketch1.addConstraint(Sketcher.Constraint("Parallel", 3, 13))
sketch1.addConstraint(Sketcher.Constraint("Perpendicular", 13, 17))
sketch1.addConstraint(Sketcher.Constraint("Perpendicular", 27, 31))
sketch1.addConstraint(Sketcher.Constraint("Perpendicular", 55, 57))
sketch1.addConstraint(Sketcher.Constraint("Perpendicular", 57, 59))
sketch1.addConstraint(Sketcher.Constraint("Parallel", 59, 61))
sketch1.addConstraint(Sketcher.Constraint("Perpendicular", 61, 63))
sketch1.addConstraint(Sketcher.Constraint("Parallel", 63, 65))
sketch1.addConstraint(Sketcher.Constraint("Perpendicular", 65, 67))
sketch1.addConstraint(Sketcher.Constraint("Parallel", 67, 69))
sketch1.addConstraint(Sketcher.Constraint("Perpendicular", 69, 71))
sketch1.addConstraint(Sketcher.Constraint("Horizontal", 10, 3, 48, 3))
sketch1.addConstraint(Sketcher.Constraint("Horizontal", 57, 2, 58, 2))
sketch1.addConstraint(Sketcher.Constraint("Horizontal", 65, 2, 66, 2))
sketch1.addConstraint(Sketcher.Constraint("Horizontal", 63, 2, 68, 2))
sketch1.addConstraint(Sketcher.Constraint("Horizontal", 61, 2, 70, 2))
sketch1.addConstraint(Sketcher.Constraint("Vertical", 6, 3, 24, 3))
sketch1.addConstraint(Sketcher.Constraint("Vertical", 34, 3, 52, 3))
sketch1.addConstraint(Sketcher.Constraint("Vertical", 61, 2, 62, 2))
sketch1.addConstraint(Sketcher.Constraint("Vertical", 59, 2, 64, 2))
sketch1.addConstraint(Sketcher.Constraint("Equal", 51, 9))
sketch1.addConstraint(Sketcher.Constraint("Equal", 53, 11))
sketch1.addConstraint(Sketcher.Constraint("Equal", 29, 15))
sketch1.addConstraint(Sketcher.Constraint("Equal", 3, 13))
sketch1.addConstraint(Sketcher.Constraint("Equal", 59, 61))
sketch1.addConstraint(Sketcher.Constraint("Radius", 4, Q("0.04 in")))
sketch1.addConstraint(Sketcher.Constraint("Radius", 0, Q("0.125 in")))
sketch1.addConstraint(Sketcher.Constraint("Radius", 8, Q("0.083 in")))
sketch1.addConstraint(Sketcher.Constraint("Radius", 56, Q("0.025 in")))
sketch1.addConstraint(Sketcher.Constraint("DistanceY", 6, 1, -1, 1, Q("0.5 in")))
sketch1.addConstraint(Sketcher.Constraint("Radius", 6, Q("0.0435 in")))
sketch1.addConstraint(Sketcher.Constraint("Radius", 58, Q("0.1025 in")))
sketch1.addConstraint(Sketcher.Constraint("Distance", 57, Q("0.035 in")))
sketch1.addConstraint(Sketcher.Constraint("DistanceX", 1, 2, 1, 1, Q("0.1291 in")))
sketch1.addConstraint(Sketcher.Constraint("DistanceX", 7, 2, 7, 1, Q("0.2455 in")))
sketch1.addConstraint(Sketcher.Constraint("DistanceX", 5, 1, 5, 2, Q("2.1188 mm")))
sketch1.addConstraint(Sketcher.Constraint("DistanceX", -1, 1, 56, 3, Q("2.4696 mm")))
sketch1.addConstraint(Sketcher.Constraint("DistanceY", -1, 1, 56, 3, Q("2.4696 mm")))
pad1 = body.newObject("PartDesign::Pad", "Pad")
pad1.Profile = sketch1
pad1.Length = Q("1 in")
pad1.Midplane = True

doc.recompute()
